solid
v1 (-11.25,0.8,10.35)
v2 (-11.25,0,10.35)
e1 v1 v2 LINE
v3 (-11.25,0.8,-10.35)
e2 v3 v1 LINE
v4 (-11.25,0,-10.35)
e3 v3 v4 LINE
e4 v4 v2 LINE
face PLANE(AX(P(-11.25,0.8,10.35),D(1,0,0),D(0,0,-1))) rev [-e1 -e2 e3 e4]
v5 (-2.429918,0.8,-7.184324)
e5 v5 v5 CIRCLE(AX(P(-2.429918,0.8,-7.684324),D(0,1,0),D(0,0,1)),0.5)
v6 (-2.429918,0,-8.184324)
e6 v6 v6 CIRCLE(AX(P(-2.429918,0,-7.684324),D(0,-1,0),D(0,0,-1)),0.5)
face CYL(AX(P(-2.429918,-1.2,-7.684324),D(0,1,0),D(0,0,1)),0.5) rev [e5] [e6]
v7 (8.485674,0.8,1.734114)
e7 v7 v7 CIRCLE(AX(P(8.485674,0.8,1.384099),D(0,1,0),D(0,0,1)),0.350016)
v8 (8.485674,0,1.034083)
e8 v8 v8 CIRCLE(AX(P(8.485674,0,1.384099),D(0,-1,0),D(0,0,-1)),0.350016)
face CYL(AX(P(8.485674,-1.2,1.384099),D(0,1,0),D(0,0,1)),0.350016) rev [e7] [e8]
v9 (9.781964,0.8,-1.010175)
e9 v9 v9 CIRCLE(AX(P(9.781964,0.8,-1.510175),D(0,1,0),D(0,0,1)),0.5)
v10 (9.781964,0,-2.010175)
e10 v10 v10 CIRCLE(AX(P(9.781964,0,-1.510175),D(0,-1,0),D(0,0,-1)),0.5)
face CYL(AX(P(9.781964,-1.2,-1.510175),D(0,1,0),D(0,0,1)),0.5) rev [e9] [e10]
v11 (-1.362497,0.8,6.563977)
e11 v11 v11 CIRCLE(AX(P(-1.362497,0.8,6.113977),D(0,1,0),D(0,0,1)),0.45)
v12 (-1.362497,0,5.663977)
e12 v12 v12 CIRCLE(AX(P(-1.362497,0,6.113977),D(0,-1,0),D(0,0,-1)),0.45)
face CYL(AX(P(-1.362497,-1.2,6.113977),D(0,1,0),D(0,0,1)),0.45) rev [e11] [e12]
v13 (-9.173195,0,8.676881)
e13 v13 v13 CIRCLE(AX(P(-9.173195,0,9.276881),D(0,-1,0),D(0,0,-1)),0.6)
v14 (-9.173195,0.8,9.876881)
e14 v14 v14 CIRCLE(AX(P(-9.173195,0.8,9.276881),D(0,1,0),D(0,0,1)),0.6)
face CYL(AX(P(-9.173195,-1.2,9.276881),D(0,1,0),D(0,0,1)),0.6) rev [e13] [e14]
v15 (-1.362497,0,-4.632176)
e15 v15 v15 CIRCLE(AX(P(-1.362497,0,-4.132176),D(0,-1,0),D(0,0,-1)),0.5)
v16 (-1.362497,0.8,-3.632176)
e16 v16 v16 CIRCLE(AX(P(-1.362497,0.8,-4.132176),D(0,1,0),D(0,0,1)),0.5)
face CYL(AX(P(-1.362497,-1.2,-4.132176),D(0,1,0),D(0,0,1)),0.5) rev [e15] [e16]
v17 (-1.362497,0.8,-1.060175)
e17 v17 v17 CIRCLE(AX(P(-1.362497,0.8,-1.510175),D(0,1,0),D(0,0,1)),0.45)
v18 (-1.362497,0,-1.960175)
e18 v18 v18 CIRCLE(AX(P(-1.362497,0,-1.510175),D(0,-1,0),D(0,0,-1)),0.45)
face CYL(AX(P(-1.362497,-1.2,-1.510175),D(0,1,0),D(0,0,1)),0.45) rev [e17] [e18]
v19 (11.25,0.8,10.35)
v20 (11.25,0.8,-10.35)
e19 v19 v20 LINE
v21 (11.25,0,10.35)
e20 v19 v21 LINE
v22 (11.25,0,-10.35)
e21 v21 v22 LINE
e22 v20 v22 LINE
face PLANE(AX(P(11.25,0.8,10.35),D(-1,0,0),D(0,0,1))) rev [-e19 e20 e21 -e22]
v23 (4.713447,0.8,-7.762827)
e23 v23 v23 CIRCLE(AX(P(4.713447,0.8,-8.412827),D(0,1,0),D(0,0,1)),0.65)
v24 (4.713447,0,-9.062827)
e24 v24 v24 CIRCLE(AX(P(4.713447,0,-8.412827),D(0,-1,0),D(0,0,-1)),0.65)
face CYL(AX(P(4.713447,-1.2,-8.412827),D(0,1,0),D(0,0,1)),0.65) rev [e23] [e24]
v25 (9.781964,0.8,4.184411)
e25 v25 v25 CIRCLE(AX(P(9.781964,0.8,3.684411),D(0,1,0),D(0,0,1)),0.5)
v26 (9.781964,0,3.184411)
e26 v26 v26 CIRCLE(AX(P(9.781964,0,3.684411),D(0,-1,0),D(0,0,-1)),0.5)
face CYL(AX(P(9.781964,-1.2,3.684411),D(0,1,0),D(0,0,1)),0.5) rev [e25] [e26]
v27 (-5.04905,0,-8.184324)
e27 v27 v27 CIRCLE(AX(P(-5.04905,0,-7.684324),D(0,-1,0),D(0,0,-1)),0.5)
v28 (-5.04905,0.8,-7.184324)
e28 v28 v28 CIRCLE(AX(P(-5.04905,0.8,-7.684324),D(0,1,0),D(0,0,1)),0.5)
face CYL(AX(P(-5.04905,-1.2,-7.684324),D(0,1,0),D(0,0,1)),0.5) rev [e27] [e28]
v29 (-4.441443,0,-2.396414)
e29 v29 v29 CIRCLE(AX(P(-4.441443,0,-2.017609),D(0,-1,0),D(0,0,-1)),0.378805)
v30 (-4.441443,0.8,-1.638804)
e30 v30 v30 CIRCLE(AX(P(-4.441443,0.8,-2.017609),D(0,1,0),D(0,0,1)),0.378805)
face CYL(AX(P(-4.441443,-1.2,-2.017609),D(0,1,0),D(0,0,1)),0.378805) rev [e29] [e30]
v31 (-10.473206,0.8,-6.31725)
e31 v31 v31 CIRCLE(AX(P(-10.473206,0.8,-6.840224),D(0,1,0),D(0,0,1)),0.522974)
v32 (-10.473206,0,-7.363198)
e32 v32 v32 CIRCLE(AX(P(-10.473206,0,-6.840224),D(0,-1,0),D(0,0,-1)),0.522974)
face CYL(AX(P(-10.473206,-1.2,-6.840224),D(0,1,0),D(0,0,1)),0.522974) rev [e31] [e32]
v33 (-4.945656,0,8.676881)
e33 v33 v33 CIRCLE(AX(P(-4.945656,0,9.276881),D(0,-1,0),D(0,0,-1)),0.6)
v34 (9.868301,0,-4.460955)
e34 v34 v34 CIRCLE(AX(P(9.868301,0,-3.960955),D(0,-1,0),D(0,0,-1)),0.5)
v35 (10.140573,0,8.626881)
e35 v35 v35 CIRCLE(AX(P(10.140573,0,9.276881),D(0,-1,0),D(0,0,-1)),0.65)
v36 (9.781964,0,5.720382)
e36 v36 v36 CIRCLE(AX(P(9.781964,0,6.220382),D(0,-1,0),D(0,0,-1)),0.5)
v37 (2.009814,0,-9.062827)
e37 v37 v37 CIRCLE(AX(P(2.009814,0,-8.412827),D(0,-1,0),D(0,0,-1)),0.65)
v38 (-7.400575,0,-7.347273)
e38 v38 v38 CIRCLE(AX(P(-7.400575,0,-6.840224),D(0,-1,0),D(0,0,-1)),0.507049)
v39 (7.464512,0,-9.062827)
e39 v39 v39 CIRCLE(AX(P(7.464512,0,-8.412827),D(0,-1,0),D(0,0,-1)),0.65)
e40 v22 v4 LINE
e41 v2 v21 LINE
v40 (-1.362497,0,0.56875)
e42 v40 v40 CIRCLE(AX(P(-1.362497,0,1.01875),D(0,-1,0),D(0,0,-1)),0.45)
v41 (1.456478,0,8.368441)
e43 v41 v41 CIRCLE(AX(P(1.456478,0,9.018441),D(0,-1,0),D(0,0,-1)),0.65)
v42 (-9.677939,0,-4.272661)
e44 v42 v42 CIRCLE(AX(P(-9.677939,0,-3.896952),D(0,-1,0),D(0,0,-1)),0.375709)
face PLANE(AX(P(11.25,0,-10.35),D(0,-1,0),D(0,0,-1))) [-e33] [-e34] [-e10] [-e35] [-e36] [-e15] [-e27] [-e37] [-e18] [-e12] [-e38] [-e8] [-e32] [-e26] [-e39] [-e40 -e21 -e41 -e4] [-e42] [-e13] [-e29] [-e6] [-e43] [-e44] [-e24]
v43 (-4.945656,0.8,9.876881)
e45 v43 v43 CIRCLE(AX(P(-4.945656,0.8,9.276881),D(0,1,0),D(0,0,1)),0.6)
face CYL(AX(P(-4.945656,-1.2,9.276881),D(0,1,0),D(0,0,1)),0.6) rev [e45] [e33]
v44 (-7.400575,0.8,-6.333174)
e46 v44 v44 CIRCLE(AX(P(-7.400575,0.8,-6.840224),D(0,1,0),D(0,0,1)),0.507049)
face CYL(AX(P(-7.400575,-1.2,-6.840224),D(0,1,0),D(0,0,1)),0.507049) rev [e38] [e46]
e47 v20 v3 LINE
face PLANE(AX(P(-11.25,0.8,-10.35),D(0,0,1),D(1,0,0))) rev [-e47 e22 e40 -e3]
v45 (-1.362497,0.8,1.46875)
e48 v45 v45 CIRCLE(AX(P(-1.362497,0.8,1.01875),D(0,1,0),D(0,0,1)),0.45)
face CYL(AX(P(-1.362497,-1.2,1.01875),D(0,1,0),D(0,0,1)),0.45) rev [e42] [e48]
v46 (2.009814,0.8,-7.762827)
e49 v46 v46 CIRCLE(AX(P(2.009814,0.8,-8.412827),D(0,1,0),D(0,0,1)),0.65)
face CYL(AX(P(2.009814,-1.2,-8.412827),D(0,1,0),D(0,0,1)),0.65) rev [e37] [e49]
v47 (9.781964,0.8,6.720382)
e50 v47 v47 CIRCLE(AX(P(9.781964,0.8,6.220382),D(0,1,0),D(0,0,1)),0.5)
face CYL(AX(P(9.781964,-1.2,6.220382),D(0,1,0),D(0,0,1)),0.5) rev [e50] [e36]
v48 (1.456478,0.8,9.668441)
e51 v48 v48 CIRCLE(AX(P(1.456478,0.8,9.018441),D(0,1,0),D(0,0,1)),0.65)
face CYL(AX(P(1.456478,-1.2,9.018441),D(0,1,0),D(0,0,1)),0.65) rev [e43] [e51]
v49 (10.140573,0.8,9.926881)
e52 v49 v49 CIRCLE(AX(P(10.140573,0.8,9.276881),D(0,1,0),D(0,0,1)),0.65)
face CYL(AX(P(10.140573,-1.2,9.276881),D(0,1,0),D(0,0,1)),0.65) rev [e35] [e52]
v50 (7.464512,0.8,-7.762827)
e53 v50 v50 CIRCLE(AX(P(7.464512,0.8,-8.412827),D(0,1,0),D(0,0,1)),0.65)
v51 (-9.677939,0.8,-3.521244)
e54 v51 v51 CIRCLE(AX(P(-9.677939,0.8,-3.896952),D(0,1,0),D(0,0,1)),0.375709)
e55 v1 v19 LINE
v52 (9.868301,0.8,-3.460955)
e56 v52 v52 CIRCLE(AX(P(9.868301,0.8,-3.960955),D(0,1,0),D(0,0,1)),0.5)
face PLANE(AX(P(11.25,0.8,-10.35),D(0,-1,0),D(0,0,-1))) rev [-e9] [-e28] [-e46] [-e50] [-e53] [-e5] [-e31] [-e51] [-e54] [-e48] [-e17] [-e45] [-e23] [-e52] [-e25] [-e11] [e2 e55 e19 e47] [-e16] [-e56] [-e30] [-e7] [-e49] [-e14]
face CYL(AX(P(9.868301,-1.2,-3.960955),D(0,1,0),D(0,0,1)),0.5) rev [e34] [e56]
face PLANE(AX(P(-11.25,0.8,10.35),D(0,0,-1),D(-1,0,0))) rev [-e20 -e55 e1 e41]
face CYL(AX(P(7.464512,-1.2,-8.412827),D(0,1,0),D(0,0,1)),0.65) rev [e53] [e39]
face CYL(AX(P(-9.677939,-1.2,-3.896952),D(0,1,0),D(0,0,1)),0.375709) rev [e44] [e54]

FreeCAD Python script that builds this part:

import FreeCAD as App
import Part
import Sketcher
Q = App.Units.Quantity


def add_polygon(sketch, points):
    """Adds a closed chain of lines whose ends are joined by coincident constraints."""
    first, n = sketch.GeometryCount, len(points)
    for a, b in zip(points, points[1:] + points[:1]):
        sketch.addGeometry(Part.LineSegment(App.Vector(*a, 0), App.Vector(*b, 0)), False)
    for i in range(n):
        sketch.addConstraint(Sketcher.Constraint("Coincident", first + i, 2, first + (i + 1) % n, 1))

doc = App.newDocument("Part")
body = doc.addObject("PartDesign::Body", "Body")

sketch1 = body.newObject("Sketcher::SketchObject", "Sketch")
sketch1.AttachmentSupport = (doc.getObject("XZ_Plane"), [""])
sketch1.MapMode = "FlatFace"
add_polygon(sketch1, [(-11, -10), (-11, 10), (11, 10), (11, -10)])
sketch1.addConstraint([
    Sketcher.Constraint("Vertical", 0),
    Sketcher.Constraint("Horizontal", 1),
    Sketcher.Constraint("Vertical", 2),
    Sketcher.Constraint("Horizontal", 3),
    Sketcher.Constraint("Symmetric", 0, 2, 2, 2, -1, 1),
    Sketcher.Constraint("DistanceX", 1, 1, 1, 2, Q("22.5 mm")),
    Sketcher.Constraint("DistanceY", 0, 1, 0, 2, Q("20.7 mm")),
])
pad1 = body.newObject("PartDesign::Pad", "Pad")
pad1.Profile = sketch1
pad1.Length = 0.8
pad1.Reversed = True

sketch2 = body.newObject("Sketcher::SketchObject", "Sketch001")
sketch2.AttachmentSupport = (doc.getObject("XZ_Plane"), [""])
sketch2.MapMode = "FlatFace"
sketch2.AttachmentOffset = App.Placement(App.Vector(0, 0, -0.8), App.Rotation())
sketch2.addGeometry([
    Part.Circle(App.Vector(-1.36, -4.13, 0), App.Vector(0, 0, 1), 0.5),
    Part.Circle(App.Vector(9.78, -1.51, 0), App.Vector(0, 0, 1), 0.5),
    Part.Circle(App.Vector(9.78, 3.68, 0), App.Vector(0, 0, 1), 0.5),
    Part.Circle(App.Vector(9.78, 6.22, 0), App.Vector(0, 0, 1), 0.5),
    Part.Circle(App.Vector(10.14, 9.28, 0), App.Vector(0, 0, 1), 0.65),
    Part.Circle(App.Vector(1.46, 9.02, 0), App.Vector(0, 0, 1), 0.65),
    Part.Circle(App.Vector(-5.05, -7.68, 0), App.Vector(0, 0, 1), 0.5),
    Part.Circle(App.Vector(-2.43, -7.68, 0), App.Vector(0, 0, 1), 0.5),
    Part.Circle(App.Vector(-1.36, 6.11, 0), App.Vector(0, 0, 1), 0.45),
    Part.Circle(App.Vector(9.87, -3.96, 0), App.Vector(0, 0, 1), 0.5),
    Part.Circle(App.Vector(-1.36, -1.51, 0), App.Vector(0, 0, 1), 0.45),
    Part.Circle(App.Vector(-1.36, 1.02, 0), App.Vector(0, 0, 1), 0.45),
    Part.Circle(App.Vector(2.01, -8.41, 0), App.Vector(0, 0, 1), 0.65),
    Part.Circle(App.Vector(4.71, -8.41, 0), App.Vector(0, 0, 1), 0.65),
    Part.Circle(App.Vector(7.46, -8.41, 0), App.Vector(0, 0, 1), 0.65),
    Part.Circle(App.Vector(-7.4, -6.84, 0), App.Vector(0, 0, 1), 0.51),
    Part.Circle(App.Vector(-9.17, 9.28, 0), App.Vector(0, 0, 1), 0.6),
    Part.Circle(App.Vector(-4.95, 9.28, 0), App.Vector(0, 0, 1), 0.6),
    Part.Circle(App.Vector(-9.68, -3.9, 0), App.Vector(0, 0, 1), 0.38),
    Part.Circle(App.Vector(-4.44, -2.02, 0), App.Vector(0, 0, 1), 0.38),
    Part.Circle(App.Vector(8.49, 1.38, 0), App.Vector(0, 0, 1), 0.35),
    Part.Circle(App.Vector(-10.47, -6.84, 0), App.Vector(0, 0, 1), 0.52),
], False)
sketch2.addConstraint([
    Sketcher.Constraint("Equal", 0, 1),
    Sketcher.Constraint("Equal", 1, 2),
    Sketcher.Constraint("Equal", 2, 3),
    Sketcher.Constraint("Equal", 4, 5),
    Sketcher.Constraint("Equal", 3, 6),
    Sketcher.Constraint("Equal", 6, 7),
    Sketcher.Constraint("Equal", 7, 9),
    Sketcher.Constraint("Equal", 8, 10),
    Sketcher.Constraint("Equal", 10, 11),
    Sketcher.Constraint("Equal", 5, 12),
    Sketcher.Constraint("Equal", 12, 13),
    Sketcher.Constraint("Equal", 13, 14),
    Sketcher.Constraint("Equal", 16, 17),
    Sketcher.Constraint("Horizontal", 6, 3, 7, 3),
    Sketcher.Constraint("Horizontal", 1, 3, 10, 3),
    Sketcher.Constraint("Horizontal", 12, 3, 13, 3),
    Sketcher.Constraint("Horizontal", 13, 3, 14, 3),
    Sketcher.Constraint("Horizontal", 4, 3, 16, 3),
    Sketcher.Constraint("Horizontal", 16, 3, 17, 3),
    Sketcher.Constraint("Horizontal", 15, 3, 21, 3),
    Sketcher.Constraint("Vertical", 1, 3, 2, 3),
    Sketcher.Constraint("Vertical", 2, 3, 3, 3),
    Sketcher.Constraint("Vertical", 0, 3, 8, 3),
    Sketcher.Constraint("Vertical", 8, 3, 10, 3),
    Sketcher.Constraint("Vertical", 10, 3, 11, 3),
    Sketcher.Constraint("Diameter", 0, Q("1 mm")),
    Sketcher.Constraint("Diameter", 4, Q("1.3 mm")),
    Sketcher.Constraint("Diameter", 8, Q("0.9 mm")),
    Sketcher.Constraint("Diameter", 16, Q("1.2 mm")),
    Sketcher.Constraint("Diameter", 15, Q("1.014099 mm")),
    Sketcher.Constraint("Diameter", 19, Q("0.75761 mm")),
    Sketcher.Constraint("Diameter", 20, Q("0.700031 mm")),
    Sketcher.Constraint("Diameter", 21, Q("1.045948 mm")),
    Sketcher.Constraint("Diameter", 18, Q("0.751418 mm")),
    Sketcher.Constraint("DistanceY", 0, 3, 1, 3, Q("2.622001 mm")),
    Sketcher.Constraint("DistanceX", -1, 1, 9, 3, Q("9.868301 mm")),
    Sketcher.Constraint("DistanceY", -1, 1, 20, 3, Q("1.384099 mm")),
    Sketcher.Constraint("DistanceY", 3, 3, 4, 3, Q("3.0565 mm")),
    Sketcher.Constraint("DistanceX", 12, 3, 14, 3, Q("5.454698 mm")),
    Sketcher.Constraint("DistanceY", 6, 3, 15, 3, Q("0.8441 mm")),
    Sketcher.Constraint("DistanceX", 20, 3, 4, 3, Q("1.654899 mm")),
    Sketcher.Constraint("DistanceY", -1, 1, 2, 3, Q("3.684411 mm")),
    Sketcher.Constraint("DistanceY", -1, 1, 3, 3, Q("6.220382 mm")),
    Sketcher.Constraint("DistanceX", -1, 1, 5, 3, Q("1.456478 mm")),
    Sketcher.Constraint("DistanceY", -1, 1, 5, 3, Q("9.018441 mm")),
    Sketcher.Constraint("DistanceX", 6, 3, -1, 1, Q("5.04905 mm")),
    Sketcher.Constraint("DistanceY", -1, 1, 11, 3, Q("1.01875 mm")),
    Sketcher.Constraint("DistanceX", 18, 3, -1, 1, Q("9.677939 mm")),
    Sketcher.Constraint("DistanceY", 19, 3, -1, 1, Q("2.017609 mm")),
    Sketcher.Constraint("DistanceX", 0, 3, 1, 3, Q("11.144462 mm")),
    Sketcher.Constraint("DistanceX", 3, 3, 4, 3, Q("0.358609 mm")),
    Sketcher.Constraint("DistanceY", 6, 3, 0, 3, Q("3.552148 mm")),
    Sketcher.Constraint("DistanceX", 7, 3, 0, 3, Q("1.067421 mm")),
    Sketcher.Constraint("DistanceY", 9, 3, 1, 3, Q("2.45078 mm")),
    Sketcher.Constraint("DistanceX", 7, 3, 9, 3, Q("12.298218 mm")),
    Sketcher.Constraint("DistanceY", 10, 3, 8, 3, Q("7.624151 mm")),
    Sketcher.Constraint("DistanceX", 7, 3, 12, 3, Q("4.439732 mm")),
    Sketcher.Constraint("DistanceY", 12, 3, 0, 3, Q("4.280651 mm")),
    Sketcher.Constraint("DistanceX", 15, 3, 12, 3, Q("9.410389 mm")),
    Sketcher.Constraint("DistanceX", 16, 3, 17, 3, Q("4.227539 mm")),
    Sketcher.Constraint("DistanceX", 17, 3, 8, 3, Q("3.583158 mm")),
    Sketcher.Constraint("DistanceY", 15, 3, 18, 3, Q("2.943271 mm")),
    Sketcher.Constraint("DistanceX", 15, 3, 19, 3, Q("2.959132 mm")),
    Sketcher.Constraint("DistanceX", 21, 3, 15, 3, Q("3.072631 mm")),
    Sketcher.Constraint("DistanceY", 0, 3, -1, 1, Q("4.132176 mm")),
    Sketcher.Constraint("DistanceX", -1, 1, 13, 3, Q("4.713447 mm")),
])
pocket1 = body.newObject("PartDesign::Pocket", "Pocket")
pocket1.Profile = sketch2
pocket1.Length = 2
pocket1.Reversed = True

doc.recompute()
